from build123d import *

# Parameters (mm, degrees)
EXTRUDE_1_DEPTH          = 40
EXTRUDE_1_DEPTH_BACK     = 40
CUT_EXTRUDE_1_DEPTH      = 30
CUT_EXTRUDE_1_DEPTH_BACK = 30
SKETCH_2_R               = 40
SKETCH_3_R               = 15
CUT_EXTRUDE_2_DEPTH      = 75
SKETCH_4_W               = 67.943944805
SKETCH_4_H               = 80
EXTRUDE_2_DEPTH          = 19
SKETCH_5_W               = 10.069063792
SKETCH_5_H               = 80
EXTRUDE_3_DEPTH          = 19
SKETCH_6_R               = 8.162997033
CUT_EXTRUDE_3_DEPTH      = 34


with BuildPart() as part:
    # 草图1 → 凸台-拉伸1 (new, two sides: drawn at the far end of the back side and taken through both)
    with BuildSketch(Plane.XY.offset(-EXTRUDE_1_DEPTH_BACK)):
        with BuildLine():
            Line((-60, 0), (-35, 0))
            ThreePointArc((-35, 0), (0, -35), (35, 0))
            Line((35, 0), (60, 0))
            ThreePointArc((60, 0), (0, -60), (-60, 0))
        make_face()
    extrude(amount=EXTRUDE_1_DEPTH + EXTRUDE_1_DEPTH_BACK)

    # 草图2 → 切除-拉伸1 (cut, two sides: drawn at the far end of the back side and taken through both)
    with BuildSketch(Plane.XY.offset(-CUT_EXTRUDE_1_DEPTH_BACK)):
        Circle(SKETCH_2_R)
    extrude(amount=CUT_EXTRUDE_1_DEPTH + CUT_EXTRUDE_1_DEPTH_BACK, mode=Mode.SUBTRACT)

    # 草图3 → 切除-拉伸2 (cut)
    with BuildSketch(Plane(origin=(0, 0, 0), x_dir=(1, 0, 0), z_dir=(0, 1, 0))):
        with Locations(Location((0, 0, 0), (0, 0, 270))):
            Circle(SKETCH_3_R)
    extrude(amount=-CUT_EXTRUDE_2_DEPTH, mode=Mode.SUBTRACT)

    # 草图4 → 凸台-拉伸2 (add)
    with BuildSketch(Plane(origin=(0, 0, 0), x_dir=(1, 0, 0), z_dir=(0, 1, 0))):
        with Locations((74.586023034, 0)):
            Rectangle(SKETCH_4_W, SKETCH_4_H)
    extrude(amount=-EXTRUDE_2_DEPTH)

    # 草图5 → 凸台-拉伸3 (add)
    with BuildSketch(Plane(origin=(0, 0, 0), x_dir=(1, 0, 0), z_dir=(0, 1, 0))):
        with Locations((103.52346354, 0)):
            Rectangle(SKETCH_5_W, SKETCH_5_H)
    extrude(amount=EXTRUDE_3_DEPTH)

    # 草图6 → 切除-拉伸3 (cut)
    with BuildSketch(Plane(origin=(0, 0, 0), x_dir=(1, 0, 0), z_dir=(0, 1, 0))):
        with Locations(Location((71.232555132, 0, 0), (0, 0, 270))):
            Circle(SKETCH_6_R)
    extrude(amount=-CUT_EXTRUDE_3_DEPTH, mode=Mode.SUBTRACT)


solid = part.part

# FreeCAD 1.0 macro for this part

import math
import FreeCAD as App
import Part
import Sketcher

V = App.Vector

doc = App.newDocument("Part")
body = doc.addObject("PartDesign::Body", "Body")

# Sketch on XY plane
sketch1 = body.newObject("Sketcher::SketchObject", "Sketch")
sketch1.AttachmentSupport = (doc.getObject("XY_Plane"), [""])
sketch1.MapMode = "FlatFace"
sketch1.addGeometry([
    Part.LineSegment(V(-35, 0, 0), V(-60, 0, 0)),
    Part.ArcOfCircle(Part.Circle(V(0, 0, 0), V(0, 0, 1), 60), math.radians(180), math.radians(360)),
    Part.LineSegment(V(60, 0, 0), V(35, 0, 0)),
    Part.ArcOfCircle(Part.Circle(V(0, 0, 0), V(0, 0, 1), 35), math.radians(180), math.radians(360)),
], False)
sketch1.addConstraint([
    Sketcher.Constraint("Coincident", 0, 2, 1, 1),
    Sketcher.Constraint("Coincident", 1, 2, 2, 1),
    Sketcher.Constraint("Coincident", 2, 2, 3, 2),
    Sketcher.Constraint("Coincident", 3, 1, 0, 1),
    Sketcher.Constraint("Horizontal", 0),
    Sketcher.Constraint("Horizontal", 2),
    Sketcher.Constraint("Coincident", 1, 3, -1, 1),
    Sketcher.Constraint("Coincident", 3, 3, -1, 1),
    Sketcher.Constraint("PointOnObject", 0, 2, -1),
    Sketcher.Constraint("PointOnObject", 1, 2, -1),
    Sketcher.Constraint("Radius", 1, 60.0),
    Sketcher.Constraint("Radius", 3, 35.0),
])
pad1 = body.newObject("PartDesign::Pad", "Pad")
pad1.Profile = sketch1
pad1.Type = "TwoLengths"
pad1.Length = 40
pad1.Length2 = 40

# Sketch on XY plane
sketch2 = body.newObject("Sketcher::SketchObject", "Sketch001")
sketch2.AttachmentSupport = (doc.getObject("XY_Plane"), [""])
sketch2.MapMode = "FlatFace"
sketch2.addGeometry(Part.Circle(V(0, 0, 0), V(0, 0, 1), 40), False)
sketch2.addConstraint([
    Sketcher.Constraint("Coincident", 0, 3, -1, 1),
    Sketcher.Constraint("Diameter", 0, 80.0),
])
pocket1 = body.newObject("PartDesign::Pocket", "Pocket")
pocket1.Profile = sketch2
pocket1.Type = "TwoLengths"
pocket1.Length = 30
pocket1.Length2 = 30
pocket1.Reversed = True

# Sketch on XZ plane
sketch3 = body.newObject("Sketcher::SketchObject", "Sketch002")
sketch3.AttachmentSupport = (doc.getObject("XZ_Plane"), [""])
sketch3.MapMode = "FlatFace"
sketch3.addGeometry(Part.Circle(V(0, 0, 0), V(0, 0, 1), 15), False)
sketch3.addConstraint([
    Sketcher.Constraint("Coincident", 0, 3, -1, 1),
    Sketcher.Constraint("Diameter", 0, 30.0),
])
pocket2 = body.newObject("PartDesign::Pocket", "Pocket001")
pocket2.Profile = sketch3
pocket2.Length = 75
pocket2.Reversed = True

# Sketch on XZ plane
sketch4 = body.newObject("Sketcher::SketchObject", "Sketch003")
sketch4.AttachmentSupport = (doc.getObject("XZ_Plane"), [""])
sketch4.MapMode = "FlatFace"
sketch4.addGeometry([
    Part.LineSegment(V(41, -40, 0), V(41, 40, 0)),
    Part.LineSegment(V(41, 40, 0), V(109, 40, 0)),
    Part.LineSegment(V(109, 40, 0), V(109, -40, 0)),
    Part.LineSegment(V(109, -40, 0), V(41, -40, 0)),
], False)
sketch4.addConstraint([
    Sketcher.Constraint("Coincident", 0, 2, 1, 1),
    Sketcher.Constraint("Coincident", 1, 2, 2, 1),
    Sketcher.Constraint("Coincident", 2, 2, 3, 1),
    Sketcher.Constraint("Coincident", 3, 2, 0, 1),
    Sketcher.Constraint("Vertical", 0),
    Sketcher.Constraint("Horizontal", 1),
    Sketcher.Constraint("Vertical", 2),
    Sketcher.Constraint("Horizontal", 3),
    Sketcher.Constraint("DistanceY", 0, 1, 0, 2, 80.0),
    Sketcher.Constraint("DistanceY", -1, 1, 0, 2, 40.0),
    Sketcher.Constraint("DistanceX", 1, 1, 1, 2, 67.943945),
    Sketcher.Constraint("DistanceX", -1, 1, 0, 2, 40.614051),
])
pad2 = body.newObject("PartDesign::Pad", "Pad001")
pad2.Profile = sketch4
pad2.Length = 19

# Sketch on XZ plane
sketch5 = body.newObject("Sketcher::SketchObject", "Sketch004")
sketch5.AttachmentSupport = (doc.getObject("XZ_Plane"), [""])
sketch5.MapMode = "FlatFace"
sketch5.addGeometry([
    Part.LineSegment(V(98, -40, 0), V(98, 40, 0)),
    Part.LineSegment(V(98, 40, 0), V(109, 40, 0)),
    Part.LineSegment(V(109, 40, 0), V(109, -40, 0)),
    Part.LineSegment(V(109, -40, 0), V(98, -40, 0)),
], False)
sketch5.addConstraint([
    Sketcher.Constraint("Coincident", 0, 2, 1, 1),
    Sketcher.Constraint("Coincident", 1, 2, 2, 1),
    Sketcher.Constraint("Coincident", 2, 2, 3, 1),
    Sketcher.Constraint("Coincident", 3, 2, 0, 1),
    Sketcher.Constraint("Vertical", 0),
    Sketcher.Constraint("Horizontal", 1),
    Sketcher.Constraint("Vertical", 2),
    Sketcher.Constraint("Horizontal", 3),
    Sketcher.Constraint("DistanceY", 0, 1, 0, 2, 80.0),
    Sketcher.Constraint("DistanceY", -1, 1, 0, 2, 40.0),
    Sketcher.Constraint("DistanceX", 1, 1, 1, 2, 10.069064),
    Sketcher.Constraint("DistanceX", -1, 1, 0, 2, 98.488932),
])
pad3 = body.newObject("PartDesign::Pad", "Pad002")
pad3.Profile = sketch5
pad3.Length = 19
pad3.Reversed = True

# Sketch on XZ plane
sketch6 = body.newObject("Sketcher::SketchObject", "Sketch005")
sketch6.AttachmentSupport = (doc.getObject("XZ_Plane"), [""])
sketch6.MapMode = "FlatFace"
sketch6.addGeometry(Part.Circle(V(71, 0, 0), V(0, 0, 1), 8), False)
sketch6.addConstraint([
    Sketcher.Constraint("PointOnObject", 0, 3, -1),
    Sketcher.Constraint("Diameter", 0, 16.325994),
    Sketcher.Constraint("DistanceX", -1, 1, 0, 3, 71.232555),
])
pocket3 = body.newObject("PartDesign::Pocket", "Pocket002")
pocket3.Profile = sketch6
pocket3.Length = 34
pocket3.Reversed = True

doc.recompute()
